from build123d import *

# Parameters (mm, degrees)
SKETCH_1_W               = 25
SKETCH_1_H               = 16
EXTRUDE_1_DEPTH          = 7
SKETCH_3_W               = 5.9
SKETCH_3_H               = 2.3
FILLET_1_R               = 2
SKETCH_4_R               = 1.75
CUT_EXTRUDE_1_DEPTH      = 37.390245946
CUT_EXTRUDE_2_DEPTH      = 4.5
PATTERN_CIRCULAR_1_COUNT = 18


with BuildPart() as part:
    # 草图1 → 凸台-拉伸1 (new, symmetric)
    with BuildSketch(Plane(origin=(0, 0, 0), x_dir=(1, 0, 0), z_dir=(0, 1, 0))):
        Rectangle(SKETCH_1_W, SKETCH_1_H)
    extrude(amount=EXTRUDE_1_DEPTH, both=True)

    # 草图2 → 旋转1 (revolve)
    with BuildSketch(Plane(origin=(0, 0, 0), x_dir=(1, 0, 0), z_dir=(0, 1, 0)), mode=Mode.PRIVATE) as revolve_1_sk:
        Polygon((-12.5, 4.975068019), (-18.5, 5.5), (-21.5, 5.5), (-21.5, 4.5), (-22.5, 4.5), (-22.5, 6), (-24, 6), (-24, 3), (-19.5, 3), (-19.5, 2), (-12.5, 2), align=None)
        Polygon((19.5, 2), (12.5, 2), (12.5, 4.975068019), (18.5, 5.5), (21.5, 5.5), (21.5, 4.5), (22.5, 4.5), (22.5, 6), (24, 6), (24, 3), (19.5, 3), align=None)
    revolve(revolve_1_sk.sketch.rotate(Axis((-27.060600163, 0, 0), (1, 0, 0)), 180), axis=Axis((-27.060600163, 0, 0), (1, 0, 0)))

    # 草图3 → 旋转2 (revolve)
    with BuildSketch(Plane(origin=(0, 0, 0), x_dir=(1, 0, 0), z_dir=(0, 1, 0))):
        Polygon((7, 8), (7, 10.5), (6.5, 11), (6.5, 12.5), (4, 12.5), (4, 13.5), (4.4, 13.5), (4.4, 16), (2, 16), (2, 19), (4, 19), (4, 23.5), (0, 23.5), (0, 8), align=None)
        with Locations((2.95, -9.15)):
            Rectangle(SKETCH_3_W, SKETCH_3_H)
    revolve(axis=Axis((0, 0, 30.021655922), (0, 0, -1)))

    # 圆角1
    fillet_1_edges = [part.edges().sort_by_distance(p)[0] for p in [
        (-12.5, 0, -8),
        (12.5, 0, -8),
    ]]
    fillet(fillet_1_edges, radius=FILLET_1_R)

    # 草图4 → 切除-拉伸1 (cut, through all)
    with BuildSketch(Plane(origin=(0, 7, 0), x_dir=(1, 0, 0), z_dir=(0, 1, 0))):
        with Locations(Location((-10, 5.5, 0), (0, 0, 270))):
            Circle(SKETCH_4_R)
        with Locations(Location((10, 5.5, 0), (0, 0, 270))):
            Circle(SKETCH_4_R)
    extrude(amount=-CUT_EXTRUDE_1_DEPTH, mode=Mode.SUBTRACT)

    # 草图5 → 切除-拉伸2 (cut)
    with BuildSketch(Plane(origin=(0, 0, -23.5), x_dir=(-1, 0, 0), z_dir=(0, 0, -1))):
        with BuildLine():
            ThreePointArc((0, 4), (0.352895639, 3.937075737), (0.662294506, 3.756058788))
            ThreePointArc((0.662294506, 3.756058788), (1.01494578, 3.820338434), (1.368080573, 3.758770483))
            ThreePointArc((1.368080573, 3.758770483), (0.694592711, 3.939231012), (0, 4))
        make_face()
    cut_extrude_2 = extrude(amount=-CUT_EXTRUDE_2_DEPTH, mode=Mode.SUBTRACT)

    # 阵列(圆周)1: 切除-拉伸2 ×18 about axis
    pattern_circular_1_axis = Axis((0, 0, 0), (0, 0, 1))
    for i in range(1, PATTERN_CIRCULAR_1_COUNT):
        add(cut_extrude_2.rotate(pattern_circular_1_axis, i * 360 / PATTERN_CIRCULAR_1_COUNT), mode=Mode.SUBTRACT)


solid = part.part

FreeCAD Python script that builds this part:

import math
import FreeCAD as App
import Part
import Sketcher

V = App.Vector
Q = App.Units.Quantity


def edges_at(feature, points):
    """Names of the edges that pass closest to the given points."""
    edges = feature.Shape.Edges
    near = lambda p: min(range(len(edges)), key=lambda i: edges[i].distToShape(Part.Vertex(*p))[0])
    return sorted({f"Edge{near(p) + 1}" for p in points})

doc = App.newDocument("Part")
body = doc.addObject("PartDesign::Body", "Body")

sketch1 = body.newObject("Sketcher::SketchObject", "Sketch")
sketch1.AttachmentSupport = (doc.getObject("XZ_Plane"), [""])
sketch1.MapMode = "FlatFace"
sketch1.addGeometry([
    Part.LineSegment(V(-12.5, -8, 0), V(-12.5, 8, 0)),
    Part.LineSegment(V(-12.5, 8, 0), V(12.5, 8, 0)),
    Part.LineSegment(V(12.5, 8, 0), V(12.5, -8, 0)),
    Part.LineSegment(V(12.5, -8, 0), V(-12.5, -8, 0)),
], False)
sketch1.addConstraint([
    Sketcher.Constraint("Coincident", 0, 2, 1, 1),
    Sketcher.Constraint("Coincident", 1, 2, 2, 1),
    Sketcher.Constraint("Coincident", 2, 2, 3, 1),
    Sketcher.Constraint("Coincident", 3, 2, 0, 1),
    Sketcher.Constraint("Vertical", 0),
    Sketcher.Constraint("Horizontal", 1),
    Sketcher.Constraint("Vertical", 2),
    Sketcher.Constraint("Horizontal", 3),
    Sketcher.Constraint("Symmetric", 0, 2, 2, 2, -1, 1),
    Sketcher.Constraint("DistanceX", 1, 1, 1, 2, Q("25 mm")),
    Sketcher.Constraint("DistanceY", 0, 1, 0, 2, Q("16 mm")),
])
pad1 = body.newObject("PartDesign::Pad", "Pad")
pad1.Profile = sketch1
pad1.Length = 14
pad1.Midplane = True

sketch2 = body.newObject("Sketcher::SketchObject", "Sketch001")
sketch2.AttachmentSupport = (doc.getObject("XZ_Plane"), [""])
sketch2.MapMode = "FlatFace"
sketch2.addGeometry([
    Part.LineSegment(V(-12.5, -4.975068, 0), V(-18.5, -5.5, 0)),
    Part.LineSegment(V(-18.5, -5.5, 0), V(-21.5, -5.5, 0)),
    Part.LineSegment(V(-21.5, -5.5, 0), V(-21.5, -4.5, 0)),
    Part.LineSegment(V(-21.5, -4.5, 0), V(-22.5, -4.5, 0)),
    Part.LineSegment(V(-22.5, -4.5, 0), V(-22.5, -6, 0)),
    Part.LineSegment(V(-22.5, -6, 0), V(-24, -6, 0)),
    Part.LineSegment(V(-24, -6, 0), V(-24, -3, 0)),
    Part.LineSegment(V(-24, -3, 0), V(-19.5, -3, 0)),
    Part.LineSegment(V(-19.5, -3, 0), V(-19.5, -2, 0)),
    Part.LineSegment(V(-19.5, -2, 0), V(-12.5, -2, 0)),
    Part.LineSegment(V(-12.5, -2, 0), V(-12.5, -4.975068, 0)),
    Part.LineSegment(V(12.5, -2, 0), V(19.5, -2, 0)),
    Part.LineSegment(V(19.5, -2, 0), V(19.5, -3, 0)),
    Part.LineSegment(V(19.5, -3, 0), V(24, -3, 0)),
    Part.LineSegment(V(24, -3, 0), V(24, -6, 0)),
    Part.LineSegment(V(24, -6, 0), V(22.5, -6, 0)),
    Part.LineSegment(V(22.5, -6, 0), V(22.5, -4.5, 0)),
    Part.LineSegment(V(22.5, -4.5, 0), V(21.5, -4.5, 0)),
    Part.LineSegment(V(21.5, -4.5, 0), V(21.5, -5.5, 0)),
    Part.LineSegment(V(21.5, -5.5, 0), V(18.5, -5.5, 0)),
    Part.LineSegment(V(18.5, -5.5, 0), V(12.5, -4.975068, 0)),
    Part.LineSegment(V(12.5, -4.975068, 0), V(12.5, -2, 0)),
], False)
sketch2.addConstraint([
    Sketcher.Constraint("Coincident", 0, 2, 1, 1),
    Sketcher.Constraint("Coincident", 1, 2, 2, 1),
    Sketcher.Constraint("Coincident", 2, 2, 3, 1),
    Sketcher.Constraint("Coincident", 3, 2, 4, 1),
    Sketcher.Constraint("Coincident", 4, 2, 5, 1),
    Sketcher.Constraint("Coincident", 5, 2, 6, 1),
    Sketcher.Constraint("Coincident", 6, 2, 7, 1),
    Sketcher.Constraint("Coincident", 7, 2, 8, 1),
    Sketcher.Constraint("Coincident", 8, 2, 9, 1),
    Sketcher.Constraint("Coincident", 9, 2, 10, 1),
    Sketcher.Constraint("Coincident", 10, 2, 0, 1),
    Sketcher.Constraint("Coincident", 11, 2, 12, 1),
    Sketcher.Constraint("Coincident", 12, 2, 13, 1),
    Sketcher.Constraint("Coincident", 13, 2, 14, 1),
    Sketcher.Constraint("Coincident", 14, 2, 15, 1),
    Sketcher.Constraint("Coincident", 15, 2, 16, 1),
    Sketcher.Constraint("Coincident", 16, 2, 17, 1),
    Sketcher.Constraint("Coincident", 17, 2, 18, 1),
    Sketcher.Constraint("Coincident", 18, 2, 19, 1),
    Sketcher.Constraint("Coincident", 19, 2, 20, 1),
    Sketcher.Constraint("Coincident", 20, 2, 21, 1),
    Sketcher.Constraint("Coincident", 21, 2, 11, 1),
    Sketcher.Constraint("Horizontal", 1),
    Sketcher.Constraint("Vertical", 2),
    Sketcher.Constraint("Horizontal", 3),
    Sketcher.Constraint("Vertical", 4),
    Sketcher.Constraint("Horizontal", 5),
    Sketcher.Constraint("Vertical", 6),
    Sketcher.Constraint("Horizontal", 7),
    Sketcher.Constraint("Vertical", 8),
    Sketcher.Constraint("Horizontal", 9),
    Sketcher.Constraint("Vertical", 10),
    Sketcher.Constraint("Horizontal", 11),
    Sketcher.Constraint("Vertical", 12),
    Sketcher.Constraint("Horizontal", 13),
    Sketcher.Constraint("Vertical", 14),
    Sketcher.Constraint("Horizontal", 15),
    Sketcher.Constraint("Vertical", 16),
    Sketcher.Constraint("Horizontal", 17),
    Sketcher.Constraint("Vertical", 18),
    Sketcher.Constraint("Horizontal", 19),
    Sketcher.Constraint("Vertical", 21),
    Sketcher.Constraint("Symmetric", 8, 2, 11, 2, -2),
    Sketcher.Constraint("Symmetric", 6, 2, 13, 2, -2),
    Sketcher.Constraint("Symmetric", 4, 2, 15, 2, -2),
    Sketcher.Constraint("Symmetric", 2, 2, 17, 2, -2),
    Sketcher.Constraint("Symmetric", 0, 2, 19, 2, -2),
    Sketcher.Constraint("Symmetric", 10, 2, 20, 2, -2),
    Sketcher.Constraint("Equal", 17, 2),
    Sketcher.Constraint("Equal", 15, 4),
    Sketcher.Constraint("Equal", 19, 6),
    Sketcher.Constraint("Equal", 2, 8),
    Sketcher.Constraint("DistanceX", 1, 2, 1, 1, Q("3 mm")),
    Sketcher.Constraint("DistanceX", 3, 2, 3, 1, Q("1 mm")),
    Sketcher.Constraint("DistanceX", 9, 1, 9, 2, Q("7 mm")),
    Sketcher.Constraint("Angle", 0, Q("-175 deg")),
    Sketcher.Constraint("DistanceX", 5, 2, 5, 1, Q("1.5 mm")),
    Sketcher.Constraint("DistanceX", 7, 1, 7, 2, Q("4.5 mm")),
    Sketcher.Constraint("DistanceY", 4, 2, -1, 1, Q("6 mm")),
    Sketcher.Constraint("DistanceX", 5, 2, -1, 1, Q("24 mm")),
])
revolution = body.newObject("PartDesign::Revolution", "Revolution")
revolution.Profile = sketch2
revolution.ReferenceAxis = (sketch2, ["H_Axis"])
revolution.Angle = 360

sketch3 = body.newObject("Sketcher::SketchObject", "Sketch002")
sketch3.AttachmentSupport = (doc.getObject("XZ_Plane"), [""])
sketch3.MapMode = "FlatFace"
sketch3.addGeometry([
    Part.LineSegment(V(7, -8, 0), V(7, -10.5, 0)),
    Part.LineSegment(V(7, -10.5, 0), V(6.5, -11, 0)),
    Part.LineSegment(V(6.5, -11, 0), V(6.5, -12.5, 0)),
    Part.LineSegment(V(6.5, -12.5, 0), V(4, -12.5, 0)),
    Part.LineSegment(V(4, -12.5, 0), V(4, -13.5, 0)),
    Part.LineSegment(V(4, -13.5, 0), V(4.4, -13.5, 0)),
    Part.LineSegment(V(4.4, -13.5, 0), V(4.4, -16, 0)),
    Part.LineSegment(V(4.4, -16, 0), V(2, -16, 0)),
    Part.LineSegment(V(2, -16, 0), V(2, -19, 0)),
    Part.LineSegment(V(2, -19, 0), V(4, -19, 0)),
    Part.LineSegment(V(4, -19, 0), V(4, -23.5, 0)),
    Part.LineSegment(V(4, -23.5, 0), V(0, -23.5, 0)),
    Part.LineSegment(V(0, -23.5, 0), V(0, -8, 0)),
    Part.LineSegment(V(0, -8, 0), V(7, -8, 0)),
    Part.LineSegment(V(0, 8, 0), V(0, 10.3, 0)),
    Part.LineSegment(V(0, 10.3, 0), V(5.9, 10.3, 0)),
    Part.LineSegment(V(5.9, 10.3, 0), V(5.9, 8, 0)),
    Part.LineSegment(V(5.9, 8, 0), V(0, 8, 0)),
], False)
sketch3.addConstraint([
    Sketcher.Constraint("Coincident", 0, 2, 1, 1),
    Sketcher.Constraint("Coincident", 1, 2, 2, 1),
    Sketcher.Constraint("Coincident", 2, 2, 3, 1),
    Sketcher.Constraint("Coincident", 3, 2, 4, 1),
    Sketcher.Constraint("Coincident", 4, 2, 5, 1),
    Sketcher.Constraint("Coincident", 5, 2, 6, 1),
    Sketcher.Constraint("Coincident", 6, 2, 7, 1),
    Sketcher.Constraint("Coincident", 7, 2, 8, 1),
    Sketcher.Constraint("Coincident", 8, 2, 9, 1),
    Sketcher.Constraint("Coincident", 9, 2, 10, 1),
    Sketcher.Constraint("Coincident", 10, 2, 11, 1),
    Sketcher.Constraint("Coincident", 11, 2, 12, 1),
    Sketcher.Constraint("Coincident", 12, 2, 13, 1),
    Sketcher.Constraint("Coincident", 13, 2, 0, 1),
    Sketcher.Constraint("Coincident", 14, 2, 15, 1),
    Sketcher.Constraint("Coincident", 15, 2, 16, 1),
    Sketcher.Constraint("Coincident", 16, 2, 17, 1),
    Sketcher.Constraint("Coincident", 17, 2, 14, 1),
    Sketcher.Constraint("Vertical", 0),
    Sketcher.Constraint("Vertical", 2),
    Sketcher.Constraint("Horizontal", 3),
    Sketcher.Constraint("Vertical", 4),
    Sketcher.Constraint("Horizontal", 5),
    Sketcher.Constraint("Vertical", 6),
    Sketcher.Constraint("Horizontal", 7),
    Sketcher.Constraint("Vertical", 8),
    Sketcher.Constraint("Horizontal", 9),
    Sketcher.Constraint("Vertical", 10),
    Sketcher.Constraint("Horizontal", 11),
    Sketcher.Constraint("Vertical", 12),
    Sketcher.Constraint("Horizontal", 13),
    Sketcher.Constraint("Vertical", 14),
    Sketcher.Constraint("Horizontal", 15),
    Sketcher.Constraint("Vertical", 16),
    Sketcher.Constraint("Horizontal", 17),
    Sketcher.Constraint("Symmetric", 12, 2, 17, 2, -1, 1),
    Sketcher.Constraint("PointOnObject", 11, 2, -2),
    Sketcher.Constraint("Vertical", 4, 2, 9, 2),
    Sketcher.Constraint("Equal", 3, 0),
    Sketcher.Constraint("Equal", 0, 6),
    Sketcher.Constraint("DistanceX", 9, 1, 9, 2, Q("2 mm")),
    Sketcher.Constraint("DistanceX", 11, 2, 11, 1, Q("4 mm")),
    Sketcher.Constraint("DistanceX", 13, 1, 13, 2, Q("7 mm")),
    Sketcher.Constraint("DistanceY", 4, 2, 4, 1, Q("1 mm")),
    Sketcher.Constraint("DistanceY", 8, 2, 8, 1, Q("3 mm")),
    Sketcher.Constraint("Angle", 1, Q("-135 deg")),
    Sketcher.Constraint("DistanceX", 3, 2, 3, 1, Q("2.5 mm")),
    Sketcher.Constraint("DistanceX", 5, 1, 5, 2, Q("0.4 mm")),
    Sketcher.Constraint("DistanceX", 15, 1, 15, 2, Q("5.9 mm")),
    Sketcher.Constraint("DistanceY", 2, 2, 2, 1, Q("1.5 mm")),
    Sketcher.Constraint("DistanceY", 10, 2, 10, 1, Q("4.5 mm")),
    Sketcher.Constraint("DistanceY", 14, 1, 14, 2, Q("2.3 mm")),
    Sketcher.Constraint("DistanceY", 1, 2, -1, 1, Q("11 mm")),
])
revolution2 = body.newObject("PartDesign::Revolution", "Revolution001")
revolution2.Profile = sketch3
revolution2.ReferenceAxis = (sketch3, ["V_Axis"])
revolution2.Angle = 360
doc.recompute()

fillet = body.newObject("PartDesign::Fillet", "Fillet")
fillet.Base = (revolution2, edges_at(revolution2, [(-12.5, 0, -8), (12.5, 0, -8)]))
fillet.Radius = 2

sketch4 = body.newObject("Sketcher::SketchObject", "Sketch003")
sketch4.AttachmentSupport = (doc.getObject("XZ_Plane"), [""])
sketch4.MapMode = "FlatFace"
sketch4.AttachmentOffset = App.Placement(V(0, 0, -7), App.Rotation())
sketch4.addGeometry([
    Part.Circle(V(-10, -5.5, 0), V(0, 0, 1), 1.75),
    Part.Circle(V(10, -5.5, 0), V(0, 0, 1), 1.75),
], False)
sketch4.addConstraint([
    Sketcher.Constraint("Equal", 0, 1),
    Sketcher.Constraint("Symmetric", 0, 3, 1, 3, -2),
    Sketcher.Constraint("Diameter", 0, Q("3.5 mm")),
    Sketcher.Constraint("DistanceX", 0, 3, -1, 1, Q("10 mm")),
    Sketcher.Constraint("DistanceY", 0, 3, -1, 1, Q("5.5 mm")),
])
pocket1 = body.newObject("PartDesign::Pocket", "Pocket")
pocket1.Profile = sketch4
pocket1.Type = "ThroughAll"
pocket1.Reversed = True

sketch5 = body.newObject("Sketcher::SketchObject", "Sketch004")
sketch5.AttachmentSupport = (doc.getObject("XY_Plane"), [""])
sketch5.MapMode = "FlatFace"
sketch5.AttachmentOffset = App.Placement(V(0, 0, -23.5), App.Rotation())
sketch5.addGeometry([
    Part.ArcOfCircle(Part.Circle(V(0, 2.978973, 0), V(0, 0, 1), 1.021027), math.radians(90), math.radians(130.440269)),
    Part.ArcOfCircle(Part.Circle(V(-1.018869, 2.799319, 0), V(0, 0, 1), 1.021027), math.radians(69.559731), math.radians(110)),
    Part.ArcOfCircle(Part.Circle(V(0, 0, 0), V(0, 0, 1), 4), math.radians(90), math.radians(110)),
], False)
sketch5.addConstraint([
    Sketcher.Constraint("Coincident", 0, 2, 1, 1),
    Sketcher.Constraint("Tangent", 1, 2, 2, 2),
    Sketcher.Constraint("Tangent", 2, 1, 0, 1),
    Sketcher.Constraint("Coincident", 2, 3, -1, 1),
    Sketcher.Constraint("Equal", 0, 1),
    Sketcher.Constraint("PointOnObject", 0, 3, -2),
    Sketcher.Constraint("Radius", 2, Q("4 mm")),
    Sketcher.Constraint("Radius", 0, Q("1.021027 mm")),
    Sketcher.Constraint("DistanceX", 1, 3, -1, 1, Q("1.018869 mm")),
])
pocket2 = body.newObject("PartDesign::Pocket", "Pocket001")
pocket2.Profile = sketch5
pocket2.Length = 4.5
pocket2.Reversed = True
doc.recompute()

polarpattern = body.newObject("PartDesign::PolarPattern", "PolarPattern")
polarpattern.Originals = [pocket2]
polarpattern.Axis = (doc.getObject("Z_Axis"), [""])
polarpattern.Angle = 360
polarpattern.Occurrences = 18
body.Tip = polarpattern

doc.recompute()
